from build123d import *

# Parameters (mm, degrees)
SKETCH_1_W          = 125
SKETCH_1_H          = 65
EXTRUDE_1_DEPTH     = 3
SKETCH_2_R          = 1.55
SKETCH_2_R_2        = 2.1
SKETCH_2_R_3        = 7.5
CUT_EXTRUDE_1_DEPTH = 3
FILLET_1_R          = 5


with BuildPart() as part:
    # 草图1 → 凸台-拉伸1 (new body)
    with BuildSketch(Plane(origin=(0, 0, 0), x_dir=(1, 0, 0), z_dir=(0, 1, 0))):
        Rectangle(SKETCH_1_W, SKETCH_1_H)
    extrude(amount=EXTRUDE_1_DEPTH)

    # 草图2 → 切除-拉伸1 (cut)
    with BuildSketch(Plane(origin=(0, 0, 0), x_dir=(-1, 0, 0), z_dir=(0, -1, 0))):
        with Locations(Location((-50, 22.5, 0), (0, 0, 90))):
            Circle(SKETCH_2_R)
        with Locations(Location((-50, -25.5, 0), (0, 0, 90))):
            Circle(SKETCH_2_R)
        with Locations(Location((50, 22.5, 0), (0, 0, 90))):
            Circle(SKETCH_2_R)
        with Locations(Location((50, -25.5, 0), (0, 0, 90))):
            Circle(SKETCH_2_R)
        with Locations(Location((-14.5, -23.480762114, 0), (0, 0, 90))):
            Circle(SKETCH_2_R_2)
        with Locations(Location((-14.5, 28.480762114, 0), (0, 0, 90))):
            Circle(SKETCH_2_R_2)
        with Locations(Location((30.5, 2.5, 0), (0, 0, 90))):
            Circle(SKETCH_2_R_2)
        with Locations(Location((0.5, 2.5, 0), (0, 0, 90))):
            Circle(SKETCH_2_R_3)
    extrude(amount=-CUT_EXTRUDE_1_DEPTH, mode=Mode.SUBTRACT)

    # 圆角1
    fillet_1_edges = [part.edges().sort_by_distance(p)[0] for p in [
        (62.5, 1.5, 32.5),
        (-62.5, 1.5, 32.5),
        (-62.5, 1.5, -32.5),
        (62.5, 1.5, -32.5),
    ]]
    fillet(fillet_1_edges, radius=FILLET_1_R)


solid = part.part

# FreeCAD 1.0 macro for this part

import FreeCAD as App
import Part
import Sketcher


def edges_at(feature, points):
    """Names of the edges that pass closest to the given points."""
    edges = feature.Shape.Edges
    near = lambda p: min(range(len(edges)), key=lambda i: edges[i].distToShape(Part.Vertex(*p))[0])
    return sorted({f"Edge{near(p) + 1}" for p in points})


def add_polygon(sketch, points):
    """Adds a closed chain of lines whose ends are joined by coincident constraints."""
    first, n = sketch.GeometryCount, len(points)
    for a, b in zip(points, points[1:] + points[:1]):
        sketch.addGeometry(Part.LineSegment(App.Vector(*a, 0), App.Vector(*b, 0)), False)
    for i in range(n):
        sketch.addConstraint(Sketcher.Constraint("Coincident", first + i, 2, first + (i + 1) % n, 1))

doc = App.newDocument("Part")
body = doc.addObject("PartDesign::Body", "Body")

# Sketch on XZ plane
sketch1 = doc.addObject("Sketcher::SketchObject", "Sketch")
body.addObject(sketch1)
sketch1.AttachmentSupport = (doc.XZ_Plane, [""])
sketch1.MapMode = "FlatFace"
add_polygon(sketch1, [(-62, -32), (-62, 32), (62, 32), (62, -32)])  # lines 0-3
sketch1.addConstraint([
    Sketcher.Constraint("Vertical", 0),
    Sketcher.Constraint("Horizontal", 1),
    Sketcher.Constraint("Vertical", 2),
    Sketcher.Constraint("Horizontal", 3),
    Sketcher.Constraint("Symmetric", 0, 2, 2, 2, -1, 1),
    Sketcher.Constraint("DistanceX", 1, 1, 1, 2, 125.0),
    Sketcher.Constraint("DistanceY", 0, 1, 0, 2, 65.0),
])
pad1 = doc.addObject("PartDesign::Pad", "Pad")
body.addObject(pad1)
pad1.Profile = sketch1
pad1.Length = 3
pad1.Reversed = True

# Sketch on XZ plane
sketch2 = doc.addObject("Sketcher::SketchObject", "Sketch001")
body.addObject(sketch2)
sketch2.AttachmentSupport = (doc.XZ_Plane, [""])
sketch2.MapMode = "FlatFace"
sketch2.addGeometry([
    Part.Circle(App.Vector(50, -22.5, 0), App.Vector(0, 0, 1), 1.6),  # 0
    Part.Circle(App.Vector(50, 25.5, 0), App.Vector(0, 0, 1), 1.6),  # 1
    Part.Circle(App.Vector(-50, -22.5, 0), App.Vector(0, 0, 1), 1.6),  # 2
    Part.Circle(App.Vector(-50, 25.5, 0), App.Vector(0, 0, 1), 1.6),  # 3
    Part.Circle(App.Vector(14.5, 23.5, 0), App.Vector(0, 0, 1), 2.1),  # 4
    Part.Circle(App.Vector(14.5, -28.5, 0), App.Vector(0, 0, 1), 2.1),  # 5
    Part.Circle(App.Vector(-30.5, -2.5, 0), App.Vector(0, 0, 1), 2.1),  # 6
    Part.Circle(App.Vector(-0.5, -2.5, 0), App.Vector(0, 0, 1), 7.5),  # 7
], False)
sketch2.addConstraint([
    Sketcher.Constraint("Equal", 0, 1),
    Sketcher.Constraint("Equal", 1, 2),
    Sketcher.Constraint("Equal", 2, 3),
    Sketcher.Constraint("Equal", 4, 5),
    Sketcher.Constraint("Equal", 5, 6),
    Sketcher.Constraint("Symmetric", 0, 3, 2, 3, -2),
    Sketcher.Constraint("Symmetric", 1, 3, 3, 3, -2),
    Sketcher.Constraint("Horizontal", 6, 3, 7, 3),
    Sketcher.Constraint("Vertical", 0, 3, 1, 3),
    Sketcher.Constraint("Vertical", 4, 3, 5, 3),
    Sketcher.Constraint("Diameter", 7, 15.0),
    Sketcher.Constraint("Diameter", 0, 3.1),
    Sketcher.Constraint("Diameter", 4, 4.2),
    Sketcher.Constraint("DistanceX", -1, 1, 0, 3, 50.0),
    Sketcher.Constraint("DistanceY", 0, 3, 1, 3, 48.0),
    Sketcher.Constraint("DistanceY", 2, 3, 6, 3, 20.0),
    Sketcher.Constraint("DistanceX", 6, 3, 4, 3, 45.0),
    Sketcher.Constraint("DistanceX", 6, 3, 7, 3, 30.0),
    Sketcher.Constraint("DistanceY", 0, 3, -1, 1, 22.5),
    Sketcher.Constraint("DistanceX", -1, 1, 4, 3, 14.5),
    Sketcher.Constraint("DistanceY", -1, 1, 4, 3, 23.480762),
    Sketcher.Constraint("DistanceY", 5, 3, -1, 1, 28.480762),
])
pocket1 = doc.addObject("PartDesign::Pocket", "Pocket")
body.addObject(pocket1)
pocket1.Profile = sketch2
pocket1.Length = 3
doc.recompute()

fillet = doc.addObject("PartDesign::Fillet", "Fillet")
body.addObject(fillet)
fillet.Base = (pocket1, edges_at(pocket1, [
    (62.5, 1.5, 32.5),
    (-62.5, 1.5, 32.5),
    (-62.5, 1.5, -32.5),
    (62.5, 1.5, -32.5),
]))
fillet.Radius = 5

doc.recompute()
